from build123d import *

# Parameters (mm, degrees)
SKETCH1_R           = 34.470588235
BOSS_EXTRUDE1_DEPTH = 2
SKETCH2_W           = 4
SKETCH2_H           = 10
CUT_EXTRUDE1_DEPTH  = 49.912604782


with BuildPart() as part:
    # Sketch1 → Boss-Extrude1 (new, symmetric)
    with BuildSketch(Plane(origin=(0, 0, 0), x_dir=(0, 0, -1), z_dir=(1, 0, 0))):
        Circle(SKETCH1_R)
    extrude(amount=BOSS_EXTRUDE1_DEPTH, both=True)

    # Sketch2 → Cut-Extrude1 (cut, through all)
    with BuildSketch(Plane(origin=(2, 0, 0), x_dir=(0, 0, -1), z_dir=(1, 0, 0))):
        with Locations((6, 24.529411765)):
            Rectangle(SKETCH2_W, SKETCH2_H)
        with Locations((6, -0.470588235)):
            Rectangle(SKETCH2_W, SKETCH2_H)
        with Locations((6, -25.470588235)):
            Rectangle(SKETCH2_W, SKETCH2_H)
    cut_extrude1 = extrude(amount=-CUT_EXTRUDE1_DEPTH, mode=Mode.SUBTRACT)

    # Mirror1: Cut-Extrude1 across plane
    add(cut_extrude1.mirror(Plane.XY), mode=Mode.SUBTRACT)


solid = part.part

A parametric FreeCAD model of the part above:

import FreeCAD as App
import Part
import Sketcher

doc = App.newDocument("Part")
body = doc.addObject("PartDesign::Body", "Body")

sketch1 = doc.addObject("Sketcher::SketchObject", "Sketch")
body.addObject(sketch1)
sketch1.AttachmentSupport = (doc.YZ_Plane, [""])
sketch1.MapMode = "FlatFace"
sketch1.addGeometry(Part.Circle(App.Vector(0, 0, 0), App.Vector(0, 0, 1), 34), False)
sketch1.addConstraint([
    Sketcher.Constraint("Coincident", 0, 3, -1, 1),
    Sketcher.Constraint("Diameter", 0, 68.941176),
])
pad1 = doc.addObject("PartDesign::Pad", "Pad")
body.addObject(pad1)
pad1.Profile = sketch1
pad1.Length = 4
pad1.Midplane = True

sketch2 = doc.addObject("Sketcher::SketchObject", "Sketch001")
body.addObject(sketch2)
sketch2.AttachmentSupport = (doc.YZ_Plane, [""])
sketch2.MapMode = "FlatFace"
sketch2.AttachmentOffset = App.Placement(App.Vector(0, 0, 2), App.Rotation())
sketch2.addGeometry([
    Part.LineSegment(App.Vector(29.5, -4, 0), App.Vector(19.5, -4, 0)),
    Part.LineSegment(App.Vector(19.5, -4, 0), App.Vector(19.5, -8, 0)),
    Part.LineSegment(App.Vector(19.5, -8, 0), App.Vector(29.5, -8, 0)),
    Part.LineSegment(App.Vector(29.5, -8, 0), App.Vector(29.5, -4, 0)),
    Part.LineSegment(App.Vector(4.5, -4, 0), App.Vector(-5.5, -4, 0)),
    Part.LineSegment(App.Vector(-5.5, -4, 0), App.Vector(-5.5, -8, 0)),
    Part.LineSegment(App.Vector(-5.5, -8, 0), App.Vector(4.5, -8, 0)),
    Part.LineSegment(App.Vector(4.5, -8, 0), App.Vector(4.5, -4, 0)),
    Part.LineSegment(App.Vector(-20.5, -4, 0), App.Vector(-30.5, -4, 0)),
    Part.LineSegment(App.Vector(-30.5, -4, 0), App.Vector(-30.5, -8, 0)),
    Part.LineSegment(App.Vector(-30.5, -8, 0), App.Vector(-20.5, -8, 0)),
    Part.LineSegment(App.Vector(-20.5, -8, 0), App.Vector(-20.5, -4, 0)),
], False)
sketch2.addConstraint([
    Sketcher.Constraint("Coincident", 0, 2, 1, 1),
    Sketcher.Constraint("Coincident", 1, 2, 2, 1),
    Sketcher.Constraint("Coincident", 2, 2, 3, 1),
    Sketcher.Constraint("Coincident", 3, 2, 0, 1),
    Sketcher.Constraint("Coincident", 4, 2, 5, 1),
    Sketcher.Constraint("Coincident", 5, 2, 6, 1),
    Sketcher.Constraint("Coincident", 6, 2, 7, 1),
    Sketcher.Constraint("Coincident", 7, 2, 4, 1),
    Sketcher.Constraint("Coincident", 8, 2, 9, 1),
    Sketcher.Constraint("Coincident", 9, 2, 10, 1),
    Sketcher.Constraint("Coincident", 10, 2, 11, 1),
    Sketcher.Constraint("Coincident", 11, 2, 8, 1),
    Sketcher.Constraint("Horizontal", 0),
    Sketcher.Constraint("Vertical", 1),
    Sketcher.Constraint("Horizontal", 2),
    Sketcher.Constraint("Vertical", 3),
    Sketcher.Constraint("Horizontal", 4),
    Sketcher.Constraint("Vertical", 5),
    Sketcher.Constraint("Horizontal", 6),
    Sketcher.Constraint("Vertical", 7),
    Sketcher.Constraint("Horizontal", 8),
    Sketcher.Constraint("Vertical", 9),
    Sketcher.Constraint("Horizontal", 10),
    Sketcher.Constraint("Vertical", 11),
    Sketcher.Constraint("Horizontal", 3, 2, 4, 2),
    Sketcher.Constraint("Horizontal", 2, 2, 5, 2),
    Sketcher.Constraint("Horizontal", 7, 2, 8, 2),
    Sketcher.Constraint("Horizontal", 6, 2, 9, 2),
    Sketcher.Constraint("Equal", 2, 4),
    Sketcher.Constraint("Equal", 6, 8),
    Sketcher.Constraint("DistanceX", 0, 2, 0, 1, 10.0),
    Sketcher.Constraint("DistanceY", 1, 2, 1, 1, 4.0),
    Sketcher.Constraint("DistanceY", 0, 2, -1, 1, 4.0),
    Sketcher.Constraint("DistanceX", 4, 2, 0, 2, 25.0),
    Sketcher.Constraint("DistanceX", 8, 2, 4, 2, 25.0),
    Sketcher.Constraint("DistanceX", -1, 1, 0, 2, 19.529412),
])
pocket1 = doc.addObject("PartDesign::Pocket", "Pocket")
body.addObject(pocket1)
pocket1.Profile = sketch2
pocket1.Type = "ThroughAll"
doc.recompute()

mirrored = doc.addObject("PartDesign::Mirrored", "Mirrored")
body.addObject(mirrored)
mirrored.Originals = [pocket1]
mirrored.MirrorPlane = (doc.XY_Plane, [""])
body.Tip = mirrored

doc.recompute()
